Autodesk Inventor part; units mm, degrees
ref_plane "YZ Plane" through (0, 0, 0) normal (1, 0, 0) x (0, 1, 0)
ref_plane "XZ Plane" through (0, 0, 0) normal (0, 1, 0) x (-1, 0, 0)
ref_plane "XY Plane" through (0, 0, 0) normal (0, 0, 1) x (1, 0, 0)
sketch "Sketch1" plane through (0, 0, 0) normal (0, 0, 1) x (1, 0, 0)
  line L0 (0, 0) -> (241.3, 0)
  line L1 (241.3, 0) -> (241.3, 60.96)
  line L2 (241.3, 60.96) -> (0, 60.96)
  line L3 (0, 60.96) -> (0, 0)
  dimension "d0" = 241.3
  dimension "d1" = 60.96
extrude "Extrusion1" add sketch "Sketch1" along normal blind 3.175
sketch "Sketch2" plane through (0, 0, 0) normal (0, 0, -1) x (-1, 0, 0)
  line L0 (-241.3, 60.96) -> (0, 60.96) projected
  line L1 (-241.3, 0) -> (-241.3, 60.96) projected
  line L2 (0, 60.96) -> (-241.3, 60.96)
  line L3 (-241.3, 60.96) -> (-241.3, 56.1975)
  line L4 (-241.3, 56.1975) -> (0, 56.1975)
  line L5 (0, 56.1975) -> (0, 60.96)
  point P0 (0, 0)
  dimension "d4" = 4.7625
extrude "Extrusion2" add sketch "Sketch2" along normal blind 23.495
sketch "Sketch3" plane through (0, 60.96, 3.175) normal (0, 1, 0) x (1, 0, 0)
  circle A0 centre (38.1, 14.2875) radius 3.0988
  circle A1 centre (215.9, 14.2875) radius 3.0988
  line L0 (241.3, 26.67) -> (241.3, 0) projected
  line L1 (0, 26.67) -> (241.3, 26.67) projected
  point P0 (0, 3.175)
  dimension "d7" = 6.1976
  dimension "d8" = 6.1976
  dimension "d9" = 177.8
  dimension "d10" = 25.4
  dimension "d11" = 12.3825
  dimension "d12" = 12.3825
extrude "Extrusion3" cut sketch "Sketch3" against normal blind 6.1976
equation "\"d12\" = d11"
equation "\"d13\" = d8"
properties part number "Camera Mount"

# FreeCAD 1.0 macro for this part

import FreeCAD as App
import Part
import Sketcher
Q = App.Units.Quantity

doc = App.newDocument("Part")
body = doc.addObject("PartDesign::Body", "Body")

# Sketch on XY plane
sketch1 = body.newObject("Sketcher::SketchObject", "Sketch")
sketch1.AttachmentSupport = (doc.getObject("XY_Plane"), [""])
sketch1.MapMode = "FlatFace"
sketch1.addGeometry(Part.LineSegment(App.Vector(0, 61, 0), App.Vector(0, 0, 0)), False)
sketch1.addGeometry(Part.LineSegment(App.Vector(0, 0, 0), App.Vector(241, 0, 0)), False)
sketch1.addGeometry(Part.LineSegment(App.Vector(241, 0, 0), App.Vector(241, 61, 0)), False)
sketch1.addGeometry(Part.LineSegment(App.Vector(241, 61, 0), App.Vector(0, 61, 0)), False)
sketch1.addConstraint(Sketcher.Constraint("Coincident", 0, 2, 1, 1))
sketch1.addConstraint(Sketcher.Constraint("Coincident", 1, 2, 2, 1))
sketch1.addConstraint(Sketcher.Constraint("Coincident", 2, 2, 3, 1))
sketch1.addConstraint(Sketcher.Constraint("Coincident", 3, 2, 0, 1))
sketch1.addConstraint(Sketcher.Constraint("Vertical", 0))
sketch1.addConstraint(Sketcher.Constraint("Horizontal", 1))
sketch1.addConstraint(Sketcher.Constraint("Vertical", 2))
sketch1.addConstraint(Sketcher.Constraint("Horizontal", 3))
sketch1.addConstraint(Sketcher.Constraint("Coincident", 0, 2, -1, 1))
sketch1.addConstraint(Sketcher.Constraint("DistanceX", 1, 1, 1, 2, Q("9.5 in")))
sketch1.addConstraint(Sketcher.Constraint("DistanceY", 0, 2, 0, 1, Q("2.4 in")))
pad1 = body.newObject("PartDesign::Pad", "Pad")
pad1.Profile = sketch1
pad1.Length = Q("0.125 in")

# Sketch on XY plane
sketch2 = body.newObject("Sketcher::SketchObject", "Sketch001")
sketch2.AttachmentSupport = (doc.getObject("XY_Plane"), [""])
sketch2.MapMode = "FlatFace"
sketch2.addGeometry(Part.LineSegment(App.Vector(0, 61, 0), App.Vector(241.3, 61, 0)), False)
sketch2.addGeometry(Part.LineSegment(App.Vector(241.3, 61, 0), App.Vector(241.3, 56.2, 0)), False)
sketch2.addGeometry(Part.LineSegment(App.Vector(241.3, 56.2, 0), App.Vector(0, 56.2, 0)), False)
sketch2.addGeometry(Part.LineSegment(App.Vector(0, 56.2, 0), App.Vector(0, 61, 0)), False)
sketch2.addConstraint(Sketcher.Constraint("Coincident", 0, 2, 1, 1))
sketch2.addConstraint(Sketcher.Constraint("Coincident", 1, 2, 2, 1))
sketch2.addConstraint(Sketcher.Constraint("Coincident", 2, 2, 3, 1))
sketch2.addConstraint(Sketcher.Constraint("Coincident", 3, 2, 0, 1))
sketch2.addConstraint(Sketcher.Constraint("Horizontal", 0))
sketch2.addConstraint(Sketcher.Constraint("Vertical", 1))
sketch2.addConstraint(Sketcher.Constraint("Horizontal", 2))
sketch2.addConstraint(Sketcher.Constraint("Vertical", 3))
sketch2.addConstraint(Sketcher.Constraint("PointOnObject", 2, 2, -2))
sketch2.addConstraint(Sketcher.Constraint("DistanceY", 1, 2, 1, 1, Q("0.1875 in")))
sketch2.addConstraint(Sketcher.Constraint("DistanceX", 0, 1, 0, 2, Q("9.5 in")))
sketch2.addConstraint(Sketcher.Constraint("DistanceY", -1, 1, 0, 2, Q("2.4 in")))
pad2 = body.newObject("PartDesign::Pad", "Pad001")
pad2.Profile = sketch2
pad2.Length = Q("0.925 in")
pad2.Reversed = True

# Sketch on XZ plane
sketch3 = body.newObject("Sketcher::SketchObject", "Sketch002")
sketch3.AttachmentSupport = (doc.getObject("XZ_Plane"), [""])
sketch3.MapMode = "FlatFace"
sketch3.AttachmentOffset = App.Placement(App.Vector(0, 0, -2.4 * 25.4), App.Rotation())
sketch3.addGeometry(Part.Circle(App.Vector(38.1, -11.1, 0), App.Vector(0, 0, 1), 3.1), False)
sketch3.addGeometry(Part.Circle(App.Vector(215.9, -11.1, 0), App.Vector(0, 0, 1), 3.1), False)
sketch3.addConstraint(Sketcher.Constraint("Equal", 0, 1))
sketch3.addConstraint(Sketcher.Constraint("Horizontal", 0, 3, 1, 3))
sketch3.addConstraint(Sketcher.Constraint("Diameter", 0, Q("0.244 in")))
sketch3.addConstraint(Sketcher.Constraint("DistanceX", 0, 3, 1, 3, Q("7 in")))
sketch3.addConstraint(Sketcher.Constraint("DistanceX", -1, 1, 0, 3, Q("1.5 in")))
sketch3.addConstraint(Sketcher.Constraint("DistanceY", 0, 3, -1, 1, Q("0.4375 in")))
pocket1 = body.newObject("PartDesign::Pocket", "Pocket")
pocket1.Profile = sketch3
pocket1.Length = Q("0.244 in")
pocket1.Reversed = True

doc.recompute()
